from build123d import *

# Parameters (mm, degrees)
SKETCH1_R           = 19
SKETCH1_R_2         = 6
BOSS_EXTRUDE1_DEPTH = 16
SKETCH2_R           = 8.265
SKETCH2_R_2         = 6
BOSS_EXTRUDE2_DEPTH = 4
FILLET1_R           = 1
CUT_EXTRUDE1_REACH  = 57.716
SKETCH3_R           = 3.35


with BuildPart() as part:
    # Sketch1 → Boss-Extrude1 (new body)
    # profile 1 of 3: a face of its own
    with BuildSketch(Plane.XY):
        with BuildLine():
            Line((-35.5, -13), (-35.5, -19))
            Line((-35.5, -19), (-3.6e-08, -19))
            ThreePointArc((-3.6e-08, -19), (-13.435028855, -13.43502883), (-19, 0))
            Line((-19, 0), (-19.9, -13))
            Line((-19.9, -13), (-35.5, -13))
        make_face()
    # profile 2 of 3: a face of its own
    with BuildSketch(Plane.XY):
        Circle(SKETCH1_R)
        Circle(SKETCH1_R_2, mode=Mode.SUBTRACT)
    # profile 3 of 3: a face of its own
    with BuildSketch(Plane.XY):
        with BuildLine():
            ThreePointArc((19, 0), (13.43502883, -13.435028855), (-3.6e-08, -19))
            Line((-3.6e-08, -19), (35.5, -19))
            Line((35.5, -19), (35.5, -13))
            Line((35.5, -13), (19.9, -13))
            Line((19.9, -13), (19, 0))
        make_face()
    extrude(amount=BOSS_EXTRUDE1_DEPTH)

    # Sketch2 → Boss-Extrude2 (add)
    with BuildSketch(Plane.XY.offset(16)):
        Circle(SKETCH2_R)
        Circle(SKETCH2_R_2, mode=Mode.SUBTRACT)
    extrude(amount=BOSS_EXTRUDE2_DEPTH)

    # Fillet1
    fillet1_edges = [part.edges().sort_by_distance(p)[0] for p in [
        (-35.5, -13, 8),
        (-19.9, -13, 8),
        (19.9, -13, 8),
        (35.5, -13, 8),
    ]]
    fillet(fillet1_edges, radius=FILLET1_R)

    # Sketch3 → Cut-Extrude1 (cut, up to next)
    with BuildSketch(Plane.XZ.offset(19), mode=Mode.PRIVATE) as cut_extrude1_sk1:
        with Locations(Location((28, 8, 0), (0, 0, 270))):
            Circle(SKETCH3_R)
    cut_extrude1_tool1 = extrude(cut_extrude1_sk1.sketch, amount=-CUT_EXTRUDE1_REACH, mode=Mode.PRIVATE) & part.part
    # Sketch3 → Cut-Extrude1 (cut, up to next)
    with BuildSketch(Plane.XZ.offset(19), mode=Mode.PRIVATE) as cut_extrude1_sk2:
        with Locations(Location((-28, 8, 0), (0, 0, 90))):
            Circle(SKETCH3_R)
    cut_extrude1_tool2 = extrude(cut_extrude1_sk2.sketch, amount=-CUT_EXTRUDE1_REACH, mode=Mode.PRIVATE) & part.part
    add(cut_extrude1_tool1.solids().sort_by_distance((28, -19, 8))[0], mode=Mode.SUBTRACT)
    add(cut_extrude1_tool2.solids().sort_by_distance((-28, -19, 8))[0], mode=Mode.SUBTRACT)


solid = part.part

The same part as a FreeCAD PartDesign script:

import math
import FreeCAD as App
import Part
import Sketcher


def edges_at(feature, points):
    """Names of the edges that pass closest to the given points."""
    edges = feature.Shape.Edges
    near = lambda p: min(range(len(edges)), key=lambda i: edges[i].distToShape(Part.Vertex(*p))[0])
    return sorted({f"Edge{near(p) + 1}" for p in points})

doc = App.newDocument("Part")
body = doc.addObject("PartDesign::Body", "Body")

# Sketch on XY plane
sketch1 = doc.addObject("Sketcher::SketchObject", "Sketch")
body.addObject(sketch1)
sketch1.AttachmentSupport = (doc.XY_Plane, [""])
sketch1.MapMode = "FlatFace"
sketch1.addGeometry(Part.LineSegment(App.Vector(-35.5, -13, 0), App.Vector(-35.5, -19, 0)), False)
sketch1.addGeometry(Part.LineSegment(App.Vector(-35.5, -19, 0), App.Vector(35.5, -19, 0)), False)
sketch1.addGeometry(Part.LineSegment(App.Vector(35.5, -19, 0), App.Vector(35.5, -13, 0)), False)
sketch1.addGeometry(Part.LineSegment(App.Vector(35.5, -13, 0), App.Vector(19.9, -13, 0)), False)
sketch1.addGeometry(Part.LineSegment(App.Vector(19.9, -13, 0), App.Vector(19, 0, 0)), False)
sketch1.addGeometry(Part.ArcOfCircle(Part.Circle(App.Vector(0, 0, 0), App.Vector(0, 0, 1), 19), math.radians(0), math.radians(180)), False)
sketch1.addGeometry(Part.LineSegment(App.Vector(-19, 0, 0), App.Vector(-19.9, -13, 0)), False)
sketch1.addGeometry(Part.LineSegment(App.Vector(-19.9, -13, 0), App.Vector(-35.5, -13, 0)), False)
sketch1.addGeometry(Part.Circle(App.Vector(0, 0, 0), App.Vector(0, 0, 1), 6), False)
sketch1.addConstraint(Sketcher.Constraint("Coincident", 0, 2, 1, 1))
sketch1.addConstraint(Sketcher.Constraint("Coincident", 1, 2, 2, 1))
sketch1.addConstraint(Sketcher.Constraint("Coincident", 2, 2, 3, 1))
sketch1.addConstraint(Sketcher.Constraint("Coincident", 3, 2, 4, 1))
sketch1.addConstraint(Sketcher.Constraint("Coincident", 4, 2, 5, 1))
sketch1.addConstraint(Sketcher.Constraint("Coincident", 5, 2, 6, 1))
sketch1.addConstraint(Sketcher.Constraint("Coincident", 6, 2, 7, 1))
sketch1.addConstraint(Sketcher.Constraint("Coincident", 7, 2, 0, 1))
sketch1.addConstraint(Sketcher.Constraint("Vertical", 0))
sketch1.addConstraint(Sketcher.Constraint("Horizontal", 1))
sketch1.addConstraint(Sketcher.Constraint("Vertical", 2))
sketch1.addConstraint(Sketcher.Constraint("Horizontal", 3))
sketch1.addConstraint(Sketcher.Constraint("Horizontal", 7))
sketch1.addConstraint(Sketcher.Constraint("Coincident", 5, 3, -1, 1))
sketch1.addConstraint(Sketcher.Constraint("Coincident", 8, 3, -1, 1))
sketch1.addConstraint(Sketcher.Constraint("Symmetric", 3, 2, 6, 2, -2))
sketch1.addConstraint(Sketcher.Constraint("PointOnObject", 4, 2, -1))
sketch1.addConstraint(Sketcher.Constraint("PointOnObject", 5, 2, -1))
sketch1.addConstraint(Sketcher.Constraint("Equal", 3, 7))
sketch1.addConstraint(Sketcher.Constraint("Diameter", 8, 12.0))
sketch1.addConstraint(Sketcher.Constraint("Radius", 5, 19.0))
sketch1.addConstraint(Sketcher.Constraint("DistanceX", 1, 1, 1, 2, 71.0))
sketch1.addConstraint(Sketcher.Constraint("DistanceY", 0, 2, 0, 1, 6.0))
sketch1.addConstraint(Sketcher.Constraint("DistanceX", 3, 2, 3, 1, 15.6))
sketch1.addConstraint(Sketcher.Constraint("DistanceY", 0, 2, -1, 1, 19.0))
pad1 = doc.addObject("PartDesign::Pad", "Pad")
body.addObject(pad1)
pad1.Profile = sketch1
pad1.Length = 16

# Sketch on XY plane
sketch2 = doc.addObject("Sketcher::SketchObject", "Sketch001")
body.addObject(sketch2)
sketch2.AttachmentSupport = (doc.XY_Plane, [""])
sketch2.MapMode = "FlatFace"
sketch2.AttachmentOffset = App.Placement(App.Vector(0, 0, 16), App.Rotation())
sketch2.addGeometry(Part.Circle(App.Vector(0, 0, 0), App.Vector(0, 0, 1), 8.265), False)
sketch2.addGeometry(Part.Circle(App.Vector(0, 0, 0), App.Vector(0, 0, 1), 6), False)
sketch2.addConstraint(Sketcher.Constraint("Coincident", 0, 3, -1, 1))
sketch2.addConstraint(Sketcher.Constraint("Coincident", 1, 3, -1, 1))
sketch2.addConstraint(Sketcher.Constraint("Diameter", 1, 12.0))
sketch2.addConstraint(Sketcher.Constraint("Diameter", 0, 16.53))
pad2 = doc.addObject("PartDesign::Pad", "Pad001")
body.addObject(pad2)
pad2.Profile = sketch2
pad2.Length = 4
doc.recompute()

fillet = doc.addObject("PartDesign::Fillet", "Fillet")
body.addObject(fillet)
fillet.Base = (pad2, edges_at(pad2, [
    (-35.5, -13, 8),
    (-19.9, -13, 8),
    (19.9, -13, 8),
    (35.5, -13, 8),
]))
fillet.Radius = 1

# Sketch on XZ plane
sketch3 = doc.addObject("Sketcher::SketchObject", "Sketch002")
body.addObject(sketch3)
sketch3.AttachmentSupport = (doc.XZ_Plane, [""])
sketch3.MapMode = "FlatFace"
sketch3.AttachmentOffset = App.Placement(App.Vector(0, 0, 19), App.Rotation())
sketch3.addGeometry(Part.Circle(App.Vector(28, 8, 0), App.Vector(0, 0, 1), 3.35), False)
sketch3.addConstraint(Sketcher.Constraint("Diameter", 0, 6.7))
sketch3.addConstraint(Sketcher.Constraint("DistanceX", -1, 1, 0, 3, 28.0))
sketch3.addConstraint(Sketcher.Constraint("DistanceY", -1, 1, 0, 3, 8.0))
pocket1 = doc.addObject("PartDesign::Pocket", "Pocket")
body.addObject(pocket1)
pocket1.Profile = sketch3
pocket1.Type = "UpToFirst"

# Sketch on XZ plane
sketch4 = doc.addObject("Sketcher::SketchObject", "Sketch003")
body.addObject(sketch4)
sketch4.AttachmentSupport = (doc.XZ_Plane, [""])
sketch4.MapMode = "FlatFace"
sketch4.AttachmentOffset = App.Placement(App.Vector(0, 0, 19), App.Rotation())
sketch4.addGeometry(Part.Circle(App.Vector(-28, 8, 0), App.Vector(0, 0, 1), 3.35), False)
sketch4.addConstraint(Sketcher.Constraint("Diameter", 0, 6.7))
sketch4.addConstraint(Sketcher.Constraint("DistanceX", 0, 3, -1, 1, 28.0))
sketch4.addConstraint(Sketcher.Constraint("DistanceY", -1, 1, 0, 3, 8.0))
pocket2 = doc.addObject("PartDesign::Pocket", "Pocket001")
body.addObject(pocket2)
pocket2.Profile = sketch4
pocket2.Type = "UpToFirst"

doc.recompute()
